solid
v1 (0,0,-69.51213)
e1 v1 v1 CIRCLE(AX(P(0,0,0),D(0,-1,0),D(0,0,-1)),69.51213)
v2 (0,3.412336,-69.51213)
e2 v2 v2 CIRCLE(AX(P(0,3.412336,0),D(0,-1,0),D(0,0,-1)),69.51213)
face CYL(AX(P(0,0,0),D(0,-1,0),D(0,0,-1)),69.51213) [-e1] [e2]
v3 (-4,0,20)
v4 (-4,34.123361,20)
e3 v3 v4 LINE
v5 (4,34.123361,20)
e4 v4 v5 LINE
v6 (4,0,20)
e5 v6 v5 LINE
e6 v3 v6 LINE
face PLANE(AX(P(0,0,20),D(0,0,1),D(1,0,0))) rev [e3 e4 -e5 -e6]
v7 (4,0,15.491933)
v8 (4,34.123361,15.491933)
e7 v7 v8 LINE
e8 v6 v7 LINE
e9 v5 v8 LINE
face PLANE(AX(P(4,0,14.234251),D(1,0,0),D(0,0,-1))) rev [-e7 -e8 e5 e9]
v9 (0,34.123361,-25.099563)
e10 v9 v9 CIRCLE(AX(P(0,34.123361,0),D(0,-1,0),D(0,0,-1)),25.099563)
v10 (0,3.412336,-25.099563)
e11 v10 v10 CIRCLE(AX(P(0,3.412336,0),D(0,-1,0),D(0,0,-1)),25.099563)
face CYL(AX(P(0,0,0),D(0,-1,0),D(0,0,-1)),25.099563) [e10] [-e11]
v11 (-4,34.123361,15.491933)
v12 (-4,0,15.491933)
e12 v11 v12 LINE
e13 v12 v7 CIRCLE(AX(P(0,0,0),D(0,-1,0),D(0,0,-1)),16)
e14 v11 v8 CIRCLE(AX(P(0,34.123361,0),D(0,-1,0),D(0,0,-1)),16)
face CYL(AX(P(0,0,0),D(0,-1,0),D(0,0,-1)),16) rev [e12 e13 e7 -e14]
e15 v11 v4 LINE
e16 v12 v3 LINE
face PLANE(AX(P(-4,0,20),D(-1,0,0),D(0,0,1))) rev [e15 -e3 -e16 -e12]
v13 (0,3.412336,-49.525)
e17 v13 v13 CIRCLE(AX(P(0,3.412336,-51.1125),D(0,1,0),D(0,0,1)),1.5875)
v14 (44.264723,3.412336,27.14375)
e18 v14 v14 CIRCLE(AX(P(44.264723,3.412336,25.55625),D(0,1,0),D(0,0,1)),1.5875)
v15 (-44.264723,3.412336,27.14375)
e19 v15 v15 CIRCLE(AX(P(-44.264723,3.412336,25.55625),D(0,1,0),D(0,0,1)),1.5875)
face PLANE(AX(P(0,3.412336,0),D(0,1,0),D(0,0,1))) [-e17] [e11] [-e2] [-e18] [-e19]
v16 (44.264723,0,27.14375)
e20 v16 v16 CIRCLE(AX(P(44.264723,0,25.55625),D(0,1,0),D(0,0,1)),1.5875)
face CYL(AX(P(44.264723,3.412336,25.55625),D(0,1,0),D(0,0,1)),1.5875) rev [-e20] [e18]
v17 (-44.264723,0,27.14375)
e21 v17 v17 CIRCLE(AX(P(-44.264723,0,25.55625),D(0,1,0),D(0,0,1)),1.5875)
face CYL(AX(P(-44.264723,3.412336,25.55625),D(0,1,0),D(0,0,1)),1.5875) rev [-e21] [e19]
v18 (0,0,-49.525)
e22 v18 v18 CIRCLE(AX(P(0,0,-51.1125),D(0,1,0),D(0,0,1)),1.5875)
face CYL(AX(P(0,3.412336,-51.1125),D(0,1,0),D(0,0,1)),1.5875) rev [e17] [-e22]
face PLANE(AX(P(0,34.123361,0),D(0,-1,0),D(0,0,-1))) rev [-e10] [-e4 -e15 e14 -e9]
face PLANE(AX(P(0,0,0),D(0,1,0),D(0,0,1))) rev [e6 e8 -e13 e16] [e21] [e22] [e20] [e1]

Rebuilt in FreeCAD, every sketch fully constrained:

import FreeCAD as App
import Part
import Sketcher
from FreeCAD import Vector
Q = App.Units.Quantity


def add_polygon(sketch, points):
    """Adds a closed chain of lines whose ends are joined by coincident constraints."""
    first, n = sketch.GeometryCount, len(points)
    for a, b in zip(points, points[1:] + points[:1]):
        sketch.addGeometry(Part.LineSegment(App.Vector(*a, 0), App.Vector(*b, 0)), False)
    for i in range(n):
        sketch.addConstraint(Sketcher.Constraint("Coincident", first + i, 2, first + (i + 1) % n, 1))

doc = App.newDocument("Part")
body = doc.addObject("PartDesign::Body", "Body")

# Sketch on XY plane
sketch1 = body.newObject("Sketcher::SketchObject", "Sketch")
sketch1.AttachmentSupport = (doc.getObject("XY_Plane"), [""])
sketch1.MapMode = "FlatFace"
add_polygon(sketch1, [(16, 0), (69.5, 0), (69.5, 3.4), (25.1, 3.4), (25.1, 34.1), (16, 34.1)])  # lines 0-5
sketch1.addConstraint([
    Sketcher.Constraint("Horizontal", 0),
    Sketcher.Constraint("Vertical", 1),
    Sketcher.Constraint("Horizontal", 2),
    Sketcher.Constraint("Vertical", 3),
    Sketcher.Constraint("Horizontal", 4),
    Sketcher.Constraint("Vertical", 5),
    Sketcher.Constraint("PointOnObject", 0, 2, -1),
    Sketcher.Constraint("DistanceX", -1, 1, 4, 2, Q("16 mm")),
    Sketcher.Constraint("DistanceX", 0, 1, 0, 2, Q("53.51213 mm")),
    Sketcher.Constraint("DistanceY", 5, 2, 5, 1, Q("34.123361 mm")),
    Sketcher.Constraint("DistanceX", 2, 2, 2, 1, Q("44.412567 mm")),
    Sketcher.Constraint("DistanceY", 1, 1, 1, 2, Q("3.412336 mm")),
])
revolution = body.newObject("PartDesign::Revolution", "Revolution")
revolution.Profile = sketch1
revolution.ReferenceAxis = (sketch1, ["V_Axis"])
revolution.Angle = 360

# Sketch on XZ plane
sketch2 = body.newObject("Sketcher::SketchObject", "Sketch001")
sketch2.AttachmentSupport = (doc.getObject("XZ_Plane"), [""])
sketch2.MapMode = "FlatFace"
sketch2.AttachmentOffset = App.Placement(Vector(0, 0, -3.412336), App.Rotation())
sketch2.addGeometry(Part.Circle(Vector(0, -51.1, 0), Vector(0, 0, 1), 1.6), False)
sketch2.addConstraint([
    Sketcher.Constraint("PointOnObject", 0, 3, -2),
    Sketcher.Constraint("Diameter", 0, Q("3.175 mm")),
    Sketcher.Constraint("DistanceY", 0, 3, -1, 1, Q("51.1125 mm")),
])
doc.recompute()
hole = body.newObject("PartDesign::Hole", "Hole")
hole.Profile = sketch2
hole.ThreadType = "None"
hole.Diameter = 3.175
hole.DepthType = "ThroughAll"
hole.Reversed = True
doc.recompute()

polarpattern = body.newObject("PartDesign::PolarPattern", "PolarPattern")
polarpattern.Originals = [hole]
polarpattern.Axis = (doc.getObject("Y_Axis"), [""])
polarpattern.Angle = 360
polarpattern.Occurrences = 3
body.Tip = polarpattern
doc.recompute()

polarpattern2 = body.newObject("PartDesign::PolarPattern", "PolarPattern001")
polarpattern2.Originals = [hole]
polarpattern2.Axis = (doc.getObject("Y_Axis"), [""])
polarpattern2.Angle = 360
polarpattern2.Occurrences = 3
body.Tip = polarpattern2

# Sketch on XZ plane
sketch3 = body.newObject("Sketcher::SketchObject", "Sketch002")
sketch3.AttachmentSupport = (doc.getObject("XZ_Plane"), [""])
sketch3.MapMode = "FlatFace"
sketch3.AttachmentOffset = App.Placement(Vector(0, 0, -34.123361), App.Rotation())
add_polygon(sketch3, [(4, 20), (4, 14), (-4, 14), (-4, 20)])  # lines 0-3
sketch3.addConstraint([
    Sketcher.Constraint("Vertical", 0),
    Sketcher.Constraint("Horizontal", 1),
    Sketcher.Constraint("Vertical", 2),
    Sketcher.Constraint("Horizontal", 3),
    Sketcher.Constraint("DistanceX", 1, 2, 1, 1, Q("8 mm")),
    Sketcher.Constraint("DistanceX", -1, 1, 0, 2, Q("4 mm")),
    Sketcher.Constraint("DistanceY", -1, 1, 2, 2, Q("20 mm")),
    Sketcher.Constraint("DistanceY", 0, 2, 0, 1, Q("5.765749 mm")),
])
pocket1 = body.newObject("PartDesign::Pocket", "Pocket")
pocket1.Profile = sketch3
pocket1.Type = "ThroughAll"
pocket1.Reversed = True

doc.recompute()
